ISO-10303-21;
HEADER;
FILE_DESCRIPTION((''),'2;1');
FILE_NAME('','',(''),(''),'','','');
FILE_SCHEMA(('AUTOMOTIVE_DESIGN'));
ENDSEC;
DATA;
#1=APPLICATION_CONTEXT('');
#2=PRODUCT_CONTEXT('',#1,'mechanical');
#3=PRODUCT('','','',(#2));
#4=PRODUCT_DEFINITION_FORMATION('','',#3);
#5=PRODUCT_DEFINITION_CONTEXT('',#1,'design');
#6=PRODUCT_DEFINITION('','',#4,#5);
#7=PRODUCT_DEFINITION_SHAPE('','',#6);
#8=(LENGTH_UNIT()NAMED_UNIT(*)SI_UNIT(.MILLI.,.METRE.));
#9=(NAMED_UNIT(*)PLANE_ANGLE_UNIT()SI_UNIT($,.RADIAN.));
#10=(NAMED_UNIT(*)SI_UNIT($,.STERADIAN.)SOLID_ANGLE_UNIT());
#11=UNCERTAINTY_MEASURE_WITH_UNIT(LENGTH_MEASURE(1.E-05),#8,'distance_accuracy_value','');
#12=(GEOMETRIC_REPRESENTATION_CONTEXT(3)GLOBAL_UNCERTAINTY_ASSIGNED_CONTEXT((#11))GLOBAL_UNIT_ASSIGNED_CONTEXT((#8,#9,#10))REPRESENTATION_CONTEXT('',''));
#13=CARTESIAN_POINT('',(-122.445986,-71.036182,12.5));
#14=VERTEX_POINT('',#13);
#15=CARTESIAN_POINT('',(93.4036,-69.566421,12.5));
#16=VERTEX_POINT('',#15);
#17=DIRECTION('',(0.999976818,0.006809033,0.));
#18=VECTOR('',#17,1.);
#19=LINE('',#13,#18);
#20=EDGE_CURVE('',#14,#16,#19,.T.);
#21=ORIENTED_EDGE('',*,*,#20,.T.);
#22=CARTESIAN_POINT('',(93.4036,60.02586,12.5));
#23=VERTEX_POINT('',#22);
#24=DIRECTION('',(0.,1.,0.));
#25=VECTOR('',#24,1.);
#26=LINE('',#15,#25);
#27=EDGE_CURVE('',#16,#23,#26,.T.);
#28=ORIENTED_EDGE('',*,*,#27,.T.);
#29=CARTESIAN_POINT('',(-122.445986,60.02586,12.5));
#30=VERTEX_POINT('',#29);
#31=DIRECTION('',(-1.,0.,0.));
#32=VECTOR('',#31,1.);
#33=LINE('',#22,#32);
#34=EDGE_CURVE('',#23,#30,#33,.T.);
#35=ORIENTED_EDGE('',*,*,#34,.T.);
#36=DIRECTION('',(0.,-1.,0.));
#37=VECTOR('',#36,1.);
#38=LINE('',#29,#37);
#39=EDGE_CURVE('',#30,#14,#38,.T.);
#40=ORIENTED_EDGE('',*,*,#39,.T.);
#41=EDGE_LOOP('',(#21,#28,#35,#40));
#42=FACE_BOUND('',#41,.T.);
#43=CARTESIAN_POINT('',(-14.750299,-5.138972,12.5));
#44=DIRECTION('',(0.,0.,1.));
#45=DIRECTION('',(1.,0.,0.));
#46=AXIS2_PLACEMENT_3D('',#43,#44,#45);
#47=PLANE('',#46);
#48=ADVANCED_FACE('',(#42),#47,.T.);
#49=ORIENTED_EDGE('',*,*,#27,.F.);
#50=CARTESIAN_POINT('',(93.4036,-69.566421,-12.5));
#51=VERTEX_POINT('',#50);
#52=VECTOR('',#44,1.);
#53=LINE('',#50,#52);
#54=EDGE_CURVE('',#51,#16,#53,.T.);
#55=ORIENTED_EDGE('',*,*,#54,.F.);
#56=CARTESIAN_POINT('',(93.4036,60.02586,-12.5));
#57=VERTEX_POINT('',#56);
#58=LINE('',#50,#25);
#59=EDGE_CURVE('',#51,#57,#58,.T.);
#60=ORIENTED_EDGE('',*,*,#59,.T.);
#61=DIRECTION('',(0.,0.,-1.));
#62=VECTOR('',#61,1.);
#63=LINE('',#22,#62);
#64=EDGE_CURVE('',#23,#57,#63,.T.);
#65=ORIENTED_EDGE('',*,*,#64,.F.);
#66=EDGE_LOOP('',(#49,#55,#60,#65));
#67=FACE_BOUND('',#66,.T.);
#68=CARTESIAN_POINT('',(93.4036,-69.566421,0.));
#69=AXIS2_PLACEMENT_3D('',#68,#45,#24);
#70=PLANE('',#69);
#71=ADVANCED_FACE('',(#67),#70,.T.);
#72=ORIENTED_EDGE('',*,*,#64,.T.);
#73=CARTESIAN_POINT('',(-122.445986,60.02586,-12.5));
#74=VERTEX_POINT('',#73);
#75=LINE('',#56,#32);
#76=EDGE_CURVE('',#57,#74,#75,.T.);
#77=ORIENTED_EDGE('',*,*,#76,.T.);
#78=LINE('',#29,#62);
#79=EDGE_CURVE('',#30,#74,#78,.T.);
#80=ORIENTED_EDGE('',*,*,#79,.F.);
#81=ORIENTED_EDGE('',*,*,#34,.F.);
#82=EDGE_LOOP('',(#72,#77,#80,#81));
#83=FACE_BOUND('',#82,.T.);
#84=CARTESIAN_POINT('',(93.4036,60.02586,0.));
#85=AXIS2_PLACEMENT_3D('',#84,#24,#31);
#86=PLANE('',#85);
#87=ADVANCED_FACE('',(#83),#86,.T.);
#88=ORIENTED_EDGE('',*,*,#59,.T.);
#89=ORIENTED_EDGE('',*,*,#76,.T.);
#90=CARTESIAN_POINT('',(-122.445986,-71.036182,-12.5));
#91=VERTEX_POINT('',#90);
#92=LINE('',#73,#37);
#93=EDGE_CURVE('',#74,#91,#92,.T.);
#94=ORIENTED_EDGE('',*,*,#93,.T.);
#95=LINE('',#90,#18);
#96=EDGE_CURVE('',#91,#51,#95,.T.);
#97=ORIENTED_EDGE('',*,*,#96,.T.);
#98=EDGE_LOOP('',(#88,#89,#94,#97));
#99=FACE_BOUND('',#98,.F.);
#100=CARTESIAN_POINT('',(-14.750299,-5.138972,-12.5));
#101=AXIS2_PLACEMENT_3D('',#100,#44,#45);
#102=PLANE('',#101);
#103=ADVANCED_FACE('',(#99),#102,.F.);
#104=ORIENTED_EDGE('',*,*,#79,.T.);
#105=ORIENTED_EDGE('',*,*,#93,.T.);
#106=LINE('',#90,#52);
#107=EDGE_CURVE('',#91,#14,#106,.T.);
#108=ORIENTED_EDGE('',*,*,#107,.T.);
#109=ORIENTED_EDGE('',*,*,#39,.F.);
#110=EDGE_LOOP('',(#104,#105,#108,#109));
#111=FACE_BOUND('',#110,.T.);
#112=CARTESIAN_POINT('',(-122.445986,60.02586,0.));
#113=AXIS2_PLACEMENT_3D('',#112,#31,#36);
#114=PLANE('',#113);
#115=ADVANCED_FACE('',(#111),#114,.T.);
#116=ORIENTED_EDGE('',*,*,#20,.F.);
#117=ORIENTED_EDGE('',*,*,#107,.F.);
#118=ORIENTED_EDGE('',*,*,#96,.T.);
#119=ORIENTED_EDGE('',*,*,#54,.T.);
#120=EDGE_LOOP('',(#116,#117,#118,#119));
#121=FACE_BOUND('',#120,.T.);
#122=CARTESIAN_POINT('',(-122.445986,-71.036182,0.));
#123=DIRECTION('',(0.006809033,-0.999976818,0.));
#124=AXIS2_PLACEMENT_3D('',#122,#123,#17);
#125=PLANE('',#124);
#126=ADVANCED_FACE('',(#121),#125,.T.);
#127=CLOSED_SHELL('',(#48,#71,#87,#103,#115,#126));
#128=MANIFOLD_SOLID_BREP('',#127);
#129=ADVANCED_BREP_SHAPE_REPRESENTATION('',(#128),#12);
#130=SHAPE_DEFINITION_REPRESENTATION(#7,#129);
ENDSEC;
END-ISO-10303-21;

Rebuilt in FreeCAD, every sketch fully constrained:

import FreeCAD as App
import Part
import Sketcher
Q = App.Units.Quantity

doc = App.newDocument("Part")
body = doc.addObject("PartDesign::Body", "Body")

sketch1 = doc.addObject("Sketcher::SketchObject", "Sketch")
body.addObject(sketch1)
sketch1.AttachmentSupport = (doc.XY_Plane, [""])
sketch1.MapMode = "FlatFace"
sketch1.addGeometry([
    Part.LineSegment(App.Vector(-122, 60, 0), App.Vector(-122, -71, 0)),
    Part.LineSegment(App.Vector(-122, -71, 0), App.Vector(93, -70, 0)),
    Part.LineSegment(App.Vector(93, -70, 0), App.Vector(93, 60, 0)),
    Part.LineSegment(App.Vector(93, 60, 0), App.Vector(-122, 60, 0)),
], False)
sketch1.addConstraint([
    Sketcher.Constraint("Coincident", 0, 2, 1, 1),
    Sketcher.Constraint("Coincident", 1, 2, 2, 1),
    Sketcher.Constraint("Coincident", 2, 2, 3, 1),
    Sketcher.Constraint("Coincident", 3, 2, 0, 1),
    Sketcher.Constraint("Vertical", 0),
    Sketcher.Constraint("Vertical", 2),
    Sketcher.Constraint("Horizontal", 3),
    Sketcher.Constraint("DistanceY", 0, 2, 0, 1, Q("131.062042 mm")),
    Sketcher.Constraint("DistanceY", 2, 1, 2, 2, Q("129.592281 mm")),
    Sketcher.Constraint("DistanceX", -1, 1, 1, 2, Q("93.4036 mm")),
    Sketcher.Constraint("Distance", 1, Q("215.85459 mm")),
    Sketcher.Constraint("DistanceY", 0, 2, -1, 1, Q("71.036182 mm")),
])
pad1 = doc.addObject("PartDesign::Pad", "Pad")
body.addObject(pad1)
pad1.Profile = sketch1
pad1.Length = 25
pad1.Midplane = True

doc.recompute()
